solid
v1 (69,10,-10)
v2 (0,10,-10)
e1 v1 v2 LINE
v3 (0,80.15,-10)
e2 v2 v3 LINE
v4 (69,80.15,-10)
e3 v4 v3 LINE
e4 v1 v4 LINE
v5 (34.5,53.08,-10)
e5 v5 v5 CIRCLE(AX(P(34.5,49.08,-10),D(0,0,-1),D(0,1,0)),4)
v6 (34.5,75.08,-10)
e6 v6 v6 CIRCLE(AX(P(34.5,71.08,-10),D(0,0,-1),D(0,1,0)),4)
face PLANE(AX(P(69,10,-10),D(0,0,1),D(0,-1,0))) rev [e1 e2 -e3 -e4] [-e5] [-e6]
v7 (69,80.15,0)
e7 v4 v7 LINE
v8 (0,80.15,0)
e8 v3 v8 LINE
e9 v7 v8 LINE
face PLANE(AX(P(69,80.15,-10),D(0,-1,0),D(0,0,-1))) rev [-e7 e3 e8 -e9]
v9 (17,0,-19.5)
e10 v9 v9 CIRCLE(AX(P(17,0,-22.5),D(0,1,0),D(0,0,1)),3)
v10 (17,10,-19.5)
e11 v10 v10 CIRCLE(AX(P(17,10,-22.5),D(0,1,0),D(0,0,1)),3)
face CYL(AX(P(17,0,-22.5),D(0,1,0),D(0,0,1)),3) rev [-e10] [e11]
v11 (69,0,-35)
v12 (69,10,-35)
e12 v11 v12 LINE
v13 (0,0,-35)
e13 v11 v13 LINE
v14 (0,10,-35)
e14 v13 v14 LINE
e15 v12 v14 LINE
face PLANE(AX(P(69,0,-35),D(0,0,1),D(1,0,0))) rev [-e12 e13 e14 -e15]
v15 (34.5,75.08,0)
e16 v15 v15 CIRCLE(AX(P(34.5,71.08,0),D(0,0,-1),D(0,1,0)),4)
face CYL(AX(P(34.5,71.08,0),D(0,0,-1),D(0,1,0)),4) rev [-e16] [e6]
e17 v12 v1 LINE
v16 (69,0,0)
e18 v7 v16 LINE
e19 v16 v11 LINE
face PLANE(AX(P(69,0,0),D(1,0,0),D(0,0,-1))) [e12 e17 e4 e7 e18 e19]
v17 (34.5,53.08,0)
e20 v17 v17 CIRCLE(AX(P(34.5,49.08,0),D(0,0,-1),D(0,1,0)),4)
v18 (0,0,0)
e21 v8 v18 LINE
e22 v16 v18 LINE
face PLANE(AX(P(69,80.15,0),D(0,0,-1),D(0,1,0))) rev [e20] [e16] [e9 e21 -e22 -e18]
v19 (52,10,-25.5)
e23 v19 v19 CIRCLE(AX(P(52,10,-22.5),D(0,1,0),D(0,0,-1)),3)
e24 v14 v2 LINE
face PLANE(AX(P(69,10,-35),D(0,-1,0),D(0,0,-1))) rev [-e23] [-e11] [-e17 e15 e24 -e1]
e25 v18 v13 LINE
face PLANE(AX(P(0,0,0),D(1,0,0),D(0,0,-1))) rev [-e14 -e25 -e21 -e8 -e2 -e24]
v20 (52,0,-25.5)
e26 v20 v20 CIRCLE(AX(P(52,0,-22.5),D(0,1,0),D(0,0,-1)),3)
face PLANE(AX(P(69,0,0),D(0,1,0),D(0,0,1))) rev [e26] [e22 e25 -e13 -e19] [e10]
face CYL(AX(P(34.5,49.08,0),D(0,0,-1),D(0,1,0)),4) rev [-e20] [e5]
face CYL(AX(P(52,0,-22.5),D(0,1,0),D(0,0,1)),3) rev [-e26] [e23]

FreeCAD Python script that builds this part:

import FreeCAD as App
import Part
import Sketcher
from FreeCAD import Vector


def add_polygon(sketch, points):
    """Adds a closed chain of lines whose ends are joined by coincident constraints."""
    first, n = sketch.GeometryCount, len(points)
    for a, b in zip(points, points[1:] + points[:1]):
        sketch.addGeometry(Part.LineSegment(App.Vector(*a, 0), App.Vector(*b, 0)), False)
    for i in range(n):
        sketch.addConstraint(Sketcher.Constraint("Coincident", first + i, 2, first + (i + 1) % n, 1))

doc = App.newDocument("Part")
body = doc.addObject("PartDesign::Body", "Body")

# Sketch on YZ plane
sketch1 = doc.addObject("Sketcher::SketchObject", "Sketch")
body.addObject(sketch1)
sketch1.AttachmentSupport = (doc.YZ_Plane, [""])
sketch1.MapMode = "FlatFace"
add_polygon(sketch1, [(80, 0), (0, 0), (0, -35), (10, -35), (10, -10), (80, -10)])  # lines 0-5
sketch1.addConstraint([
    Sketcher.Constraint("Horizontal", 0),
    Sketcher.Constraint("Vertical", 1),
    Sketcher.Constraint("Horizontal", 2),
    Sketcher.Constraint("Vertical", 3),
    Sketcher.Constraint("Horizontal", 4),
    Sketcher.Constraint("Vertical", 5),
    Sketcher.Constraint("Coincident", 0, 2, -1, 1),
    Sketcher.Constraint("Equal", 2, 5),
    Sketcher.Constraint("DistanceX", 2, 1, 2, 2, 10.0),
    Sketcher.Constraint("DistanceY", 1, 2, 1, 1, 35.0),
    Sketcher.Constraint("DistanceX", 0, 2, 0, 1, 80.15),
])
pad1 = doc.addObject("PartDesign::Pad", "Pad")
body.addObject(pad1)
pad1.Profile = sketch1
pad1.Length = 69

# Sketch on XY plane
sketch2 = doc.addObject("Sketcher::SketchObject", "Sketch001")
body.addObject(sketch2)
sketch2.AttachmentSupport = (doc.XY_Plane, [""])
sketch2.MapMode = "FlatFace"
sketch2.AttachmentOffset = App.Placement(Vector(0, 0, -10), App.Rotation())
sketch2.addGeometry([
    Part.Circle(Vector(34.5, 71.1, 0), Vector(0, 0, 1), 4),
    Part.Circle(Vector(34.5, 49.1, 0), Vector(0, 0, 1), 4),
], False)
sketch2.addConstraint([
    Sketcher.Constraint("Equal", 0, 1),
    Sketcher.Constraint("Vertical", 0, 3, 1, 3),
    Sketcher.Constraint("Diameter", 0, 8.0),
    Sketcher.Constraint("DistanceY", 1, 3, 0, 3, 22.0),
    Sketcher.Constraint("DistanceX", -1, 1, 0, 3, 34.5),
    Sketcher.Constraint("DistanceY", -1, 1, 0, 3, 71.08),
])
pocket1 = doc.addObject("PartDesign::Pocket", "Pocket")
body.addObject(pocket1)
pocket1.Profile = sketch2
pocket1.Type = "ThroughAll"
pocket1.Reversed = True

# Sketch on XZ plane
sketch3 = doc.addObject("Sketcher::SketchObject", "Sketch002")
body.addObject(sketch3)
sketch3.AttachmentSupport = (doc.XZ_Plane, [""])
sketch3.MapMode = "FlatFace"
sketch3.AttachmentOffset = App.Placement(Vector(0, 0, -10), App.Rotation())
sketch3.addGeometry([
    Part.Circle(Vector(17, -22.5, 0), Vector(0, 0, 1), 3),
    Part.Circle(Vector(52, -22.5, 0), Vector(0, 0, 1), 3),
], False)
sketch3.addConstraint([
    Sketcher.Constraint("Equal", 0, 1),
    Sketcher.Constraint("Horizontal", 0, 3, 1, 3),
    Sketcher.Constraint("Diameter", 0, 6.0),
    Sketcher.Constraint("DistanceX", -1, 1, 0, 3, 17.0),
    Sketcher.Constraint("DistanceX", -1, 1, 1, 3, 52.0),
    Sketcher.Constraint("DistanceY", 0, 3, -1, 1, 22.5),
])
pocket2 = doc.addObject("PartDesign::Pocket", "Pocket001")
body.addObject(pocket2)
pocket2.Profile = sketch3
pocket2.Length = 10
pocket2.Reversed = True

doc.recompute()
